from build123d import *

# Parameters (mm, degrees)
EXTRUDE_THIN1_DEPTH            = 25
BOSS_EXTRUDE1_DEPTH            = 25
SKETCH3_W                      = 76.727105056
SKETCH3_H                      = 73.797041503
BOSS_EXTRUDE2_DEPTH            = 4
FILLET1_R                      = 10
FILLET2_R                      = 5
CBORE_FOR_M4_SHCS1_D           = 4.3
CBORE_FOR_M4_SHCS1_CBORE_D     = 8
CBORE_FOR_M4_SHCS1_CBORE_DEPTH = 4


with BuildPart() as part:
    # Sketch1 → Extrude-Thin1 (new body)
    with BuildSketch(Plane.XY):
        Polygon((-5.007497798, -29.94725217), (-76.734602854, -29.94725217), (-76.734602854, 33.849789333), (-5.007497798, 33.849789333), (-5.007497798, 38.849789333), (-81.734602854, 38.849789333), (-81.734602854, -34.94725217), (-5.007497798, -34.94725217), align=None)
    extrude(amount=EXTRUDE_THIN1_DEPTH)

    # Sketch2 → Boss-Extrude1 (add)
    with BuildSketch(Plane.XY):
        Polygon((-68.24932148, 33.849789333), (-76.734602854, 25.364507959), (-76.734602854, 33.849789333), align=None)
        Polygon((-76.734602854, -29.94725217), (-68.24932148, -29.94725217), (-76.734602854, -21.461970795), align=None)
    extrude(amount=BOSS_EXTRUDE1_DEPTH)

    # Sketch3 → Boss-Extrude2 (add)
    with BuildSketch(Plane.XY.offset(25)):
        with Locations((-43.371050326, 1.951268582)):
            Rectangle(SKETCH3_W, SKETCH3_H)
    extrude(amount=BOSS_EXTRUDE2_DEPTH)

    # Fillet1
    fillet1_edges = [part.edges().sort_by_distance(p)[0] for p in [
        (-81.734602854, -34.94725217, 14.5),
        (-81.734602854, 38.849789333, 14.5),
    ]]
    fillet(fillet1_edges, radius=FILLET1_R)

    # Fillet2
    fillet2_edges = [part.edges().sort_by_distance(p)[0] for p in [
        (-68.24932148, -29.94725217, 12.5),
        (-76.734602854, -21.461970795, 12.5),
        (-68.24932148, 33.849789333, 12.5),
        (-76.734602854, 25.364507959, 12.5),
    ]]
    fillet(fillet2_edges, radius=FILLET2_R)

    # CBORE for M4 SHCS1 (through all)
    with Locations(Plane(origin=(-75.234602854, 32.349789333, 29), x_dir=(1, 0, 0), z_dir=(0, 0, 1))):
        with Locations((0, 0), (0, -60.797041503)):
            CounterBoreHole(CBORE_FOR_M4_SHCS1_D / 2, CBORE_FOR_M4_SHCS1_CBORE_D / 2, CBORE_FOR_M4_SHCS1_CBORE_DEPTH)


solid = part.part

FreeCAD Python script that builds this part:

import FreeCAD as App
import Part
import Sketcher


def edges_at(feature, points):
    """Names of the edges that pass closest to the given points."""
    edges = feature.Shape.Edges
    near = lambda p: min(range(len(edges)), key=lambda i: edges[i].distToShape(Part.Vertex(*p))[0])
    return sorted({f"Edge{near(p) + 1}" for p in points})

doc = App.newDocument("Part")
params = doc.addObject("Spreadsheet::Sheet", "Params")
for row, (alias, value) in enumerate([
    ("sketch1_height", "5 mm"),
    ("pad1_length", "25 mm"),
    ("sketch2_length", "12 mm"),
    ("pad2_length", "25 mm"),
    ("pad3_length", "4 mm"),
    ("fillet_radius", "10 mm"),
    ("fillet2_radius", "5 mm"),
    ("sketch4_diameter", "4.3 mm"),
    ("hole_diameter", "4.3 mm"),
    ("hole_cbore_diameter", "8 mm"),
    ("hole_cbore_depth", "4 mm"),
], start=1):
    params.set(f"A{row}", alias)
    params.set(f"B{row}", "=" + value)
    params.setAlias(f"B{row}", alias)

body = doc.addObject("PartDesign::Body", "Body")

# Sketch on XY plane
sketch1 = body.newObject("Sketcher::SketchObject", "Sketch")
sketch1.AttachmentSupport = (doc.getObject("XY_Plane"), [""])
sketch1.MapMode = "FlatFace"
sketch1.addGeometry(Part.LineSegment(App.Vector(-5, -30, 0), App.Vector(-77, -30, 0)), False)
sketch1.addGeometry(Part.LineSegment(App.Vector(-77, -30, 0), App.Vector(-77, 34, 0)), False)
sketch1.addGeometry(Part.LineSegment(App.Vector(-77, 34, 0), App.Vector(-5, 34, 0)), False)
sketch1.addGeometry(Part.LineSegment(App.Vector(-5, 34, 0), App.Vector(-5, 39, 0)), False)
sketch1.addGeometry(Part.LineSegment(App.Vector(-5, 39, 0), App.Vector(-82, 39, 0)), False)
sketch1.addGeometry(Part.LineSegment(App.Vector(-82, 39, 0), App.Vector(-82, -35, 0)), False)
sketch1.addGeometry(Part.LineSegment(App.Vector(-82, -35, 0), App.Vector(-5, -35, 0)), False)
sketch1.addGeometry(Part.LineSegment(App.Vector(-5, -35, 0), App.Vector(-5, -30, 0)), False)
sketch1.addConstraint(Sketcher.Constraint("Coincident", 0, 2, 1, 1))
sketch1.addConstraint(Sketcher.Constraint("Coincident", 1, 2, 2, 1))
sketch1.addConstraint(Sketcher.Constraint("Coincident", 2, 2, 3, 1))
sketch1.addConstraint(Sketcher.Constraint("Coincident", 3, 2, 4, 1))
sketch1.addConstraint(Sketcher.Constraint("Coincident", 4, 2, 5, 1))
sketch1.addConstraint(Sketcher.Constraint("Coincident", 5, 2, 6, 1))
sketch1.addConstraint(Sketcher.Constraint("Coincident", 6, 2, 7, 1))
sketch1.addConstraint(Sketcher.Constraint("Coincident", 7, 2, 0, 1))
sketch1.addConstraint(Sketcher.Constraint("Horizontal", 0))
sketch1.addConstraint(Sketcher.Constraint("Vertical", 1))
sketch1.addConstraint(Sketcher.Constraint("Horizontal", 2))
sketch1.addConstraint(Sketcher.Constraint("Vertical", 3))
sketch1.addConstraint(Sketcher.Constraint("Horizontal", 4))
sketch1.addConstraint(Sketcher.Constraint("Vertical", 5))
sketch1.addConstraint(Sketcher.Constraint("Horizontal", 6))
sketch1.addConstraint(Sketcher.Constraint("Vertical", 7))
sketch1.addConstraint(Sketcher.Constraint("Vertical", 3, 2, 6, 2))
sketch1.addConstraint(Sketcher.Constraint("Equal", 3, 7))
sketch1.addConstraint(Sketcher.Constraint("DistanceY", 3, 1, 3, 2, 5.0))
sketch1.addConstraint(Sketcher.Constraint("DistanceX", 4, 2, 1, 2, 5.0))
sketch1.addConstraint(Sketcher.Constraint("DistanceY", 1, 1, 1, 2, 63.797042))
sketch1.addConstraint(Sketcher.Constraint("DistanceX", 0, 2, 0, 1, 71.727105))
sketch1.addConstraint(Sketcher.Constraint("DistanceY", -1, 1, 1, 2, 33.849789))
sketch1.addConstraint(Sketcher.Constraint("DistanceX", 0, 2, -1, 1, 76.734603))
sketch1.setExpression("Constraints[18]", "Params.sketch1_height")
pad1 = body.newObject("PartDesign::Pad", "Pad")
pad1.Profile = sketch1
pad1.setExpression("Length", "Params.pad1_length")

# Sketch on XY plane
sketch2 = body.newObject("Sketcher::SketchObject", "Sketch001")
sketch2.AttachmentSupport = (doc.getObject("XY_Plane"), [""])
sketch2.MapMode = "FlatFace"
sketch2.addGeometry(Part.LineSegment(App.Vector(-77, 25, 0), App.Vector(-68, 34, 0)), False)
sketch2.addGeometry(Part.LineSegment(App.Vector(-68, 34, 0), App.Vector(-77, 34, 0)), False)
sketch2.addGeometry(Part.LineSegment(App.Vector(-77, 34, 0), App.Vector(-77, 25, 0)), False)
sketch2.addGeometry(Part.LineSegment(App.Vector(-77, -30, 0), App.Vector(-68, -30, 0)), False)
sketch2.addGeometry(Part.LineSegment(App.Vector(-68, -30, 0), App.Vector(-77, -21, 0)), False)
sketch2.addGeometry(Part.LineSegment(App.Vector(-77, -21, 0), App.Vector(-77, -30, 0)), False)
sketch2.addConstraint(Sketcher.Constraint("Coincident", 0, 2, 1, 1))
sketch2.addConstraint(Sketcher.Constraint("Coincident", 1, 2, 2, 1))
sketch2.addConstraint(Sketcher.Constraint("Coincident", 2, 2, 0, 1))
sketch2.addConstraint(Sketcher.Constraint("Coincident", 3, 2, 4, 1))
sketch2.addConstraint(Sketcher.Constraint("Coincident", 4, 2, 5, 1))
sketch2.addConstraint(Sketcher.Constraint("Coincident", 5, 2, 3, 1))
sketch2.addConstraint(Sketcher.Constraint("Horizontal", 1))
sketch2.addConstraint(Sketcher.Constraint("Vertical", 2))
sketch2.addConstraint(Sketcher.Constraint("Horizontal", 3))
sketch2.addConstraint(Sketcher.Constraint("Vertical", 5))
sketch2.addConstraint(Sketcher.Constraint("Perpendicular", 0, 4))
sketch2.addConstraint(Sketcher.Constraint("Vertical", 0, 2, 3, 2))
sketch2.addConstraint(Sketcher.Constraint("Vertical", 2, 2, 4, 2))
sketch2.addConstraint(Sketcher.Constraint("Equal", 3, 2))
sketch2.addConstraint(Sketcher.Constraint("Distance", 0, 12.0))
sketch2.addConstraint(Sketcher.Constraint("DistanceX", 0, 2, -1, 1, 68.249321))
sketch2.addConstraint(Sketcher.Constraint("DistanceY", -1, 1, 0, 2, 33.849789))
sketch2.addConstraint(Sketcher.Constraint("DistanceY", 4, 2, -1, 1, 21.461971))
sketch2.setExpression("Constraints[14]", "Params.sketch2_length")
pad2 = body.newObject("PartDesign::Pad", "Pad001")
pad2.Profile = sketch2
pad2.setExpression("Length", "Params.pad2_length")

# Sketch on XY plane
sketch3 = body.newObject("Sketcher::SketchObject", "Sketch002")
sketch3.AttachmentSupport = (doc.getObject("XY_Plane"), [""])
sketch3.MapMode = "FlatFace"
sketch3.AttachmentOffset = App.Placement(App.Vector(0, 0, 25), App.Rotation())
sketch3.addGeometry(Part.LineSegment(App.Vector(-82, 39, 0), App.Vector(-82, -35, 0)), False)
sketch3.addGeometry(Part.LineSegment(App.Vector(-82, -35, 0), App.Vector(-5, -35, 0)), False)
sketch3.addGeometry(Part.LineSegment(App.Vector(-5, -35, 0), App.Vector(-5, 39, 0)), False)
sketch3.addGeometry(Part.LineSegment(App.Vector(-5, 39, 0), App.Vector(-82, 39, 0)), False)
sketch3.addConstraint(Sketcher.Constraint("Coincident", 0, 2, 1, 1))
sketch3.addConstraint(Sketcher.Constraint("Coincident", 1, 2, 2, 1))
sketch3.addConstraint(Sketcher.Constraint("Coincident", 2, 2, 3, 1))
sketch3.addConstraint(Sketcher.Constraint("Coincident", 3, 2, 0, 1))
sketch3.addConstraint(Sketcher.Constraint("Vertical", 0))
sketch3.addConstraint(Sketcher.Constraint("Horizontal", 1))
sketch3.addConstraint(Sketcher.Constraint("Vertical", 2))
sketch3.addConstraint(Sketcher.Constraint("Horizontal", 3))
sketch3.addConstraint(Sketcher.Constraint("DistanceY", 0, 2, 0, 1, 73.797042))
sketch3.addConstraint(Sketcher.Constraint("DistanceX", 1, 1, 1, 2, 76.727105))
sketch3.addConstraint(Sketcher.Constraint("DistanceY", -1, 1, 2, 2, 38.849789))
sketch3.addConstraint(Sketcher.Constraint("DistanceX", 0, 2, -1, 1, 81.734603))
pad3 = body.newObject("PartDesign::Pad", "Pad002")
pad3.Profile = sketch3
pad3.setExpression("Length", "Params.pad3_length")
doc.recompute()

fillet = body.newObject("PartDesign::Fillet", "Fillet")
fillet.Base = (pad3, edges_at(pad3, [(-81.735, -34.947, 12.5), (-81.735, 38.85, 12.5)]))
fillet.setExpression("Radius", "Params.fillet_radius")
doc.recompute()

fillet2 = body.newObject("PartDesign::Fillet", "Fillet001")
fillet2.Base = (fillet, edges_at(fillet, [
    (-68.249, -29.947, 12.5),
    (-76.735, -21.462, 12.5),
    (-68.249, 33.85, 12.5),
    (-76.735, 25.365, 12.5),
]))
fillet2.setExpression("Radius", "Params.fillet2_radius")

# Sketch on XY plane
sketch4 = body.newObject("Sketcher::SketchObject", "Sketch003")
sketch4.AttachmentSupport = (doc.getObject("XY_Plane"), [""])
sketch4.MapMode = "FlatFace"
sketch4.AttachmentOffset = App.Placement(App.Vector(0, 0, 29), App.Rotation())
sketch4.addGeometry(Part.Circle(App.Vector(-75.2, 32.3, 0), App.Vector(0, 0, 1), 2.1), False)
sketch4.addGeometry(Part.Circle(App.Vector(-75.2, -28.4, 0), App.Vector(0, 0, 1), 2.1), False)
sketch4.addConstraint(Sketcher.Constraint("Equal", 0, 1))
sketch4.addConstraint(Sketcher.Constraint("Vertical", 0, 3, 1, 3))
sketch4.addConstraint(Sketcher.Constraint("Diameter", 0, 4.3))
sketch4.addConstraint(Sketcher.Constraint("DistanceY", -1, 1, 0, 3, 32.349789))
sketch4.addConstraint(Sketcher.Constraint("DistanceY", 1, 3, 0, 3, 60.797042))
sketch4.addConstraint(Sketcher.Constraint("DistanceX", 0, 3, -1, 1, 75.234603))
sketch4.setExpression("Constraints[2]", "Params.sketch4_diameter")
doc.recompute()
hole = body.newObject("PartDesign::Hole", "Hole")
hole.Profile = sketch4
hole.ThreadType = "None"
hole.setExpression("Diameter", "Params.hole_diameter")
hole.DepthType = "ThroughAll"
hole.HoleCutType = "Counterbore"
hole.setExpression("HoleCutDiameter", "Params.hole_cbore_diameter")
hole.setExpression("HoleCutDepth", "Params.hole_cbore_depth")

doc.recompute()
